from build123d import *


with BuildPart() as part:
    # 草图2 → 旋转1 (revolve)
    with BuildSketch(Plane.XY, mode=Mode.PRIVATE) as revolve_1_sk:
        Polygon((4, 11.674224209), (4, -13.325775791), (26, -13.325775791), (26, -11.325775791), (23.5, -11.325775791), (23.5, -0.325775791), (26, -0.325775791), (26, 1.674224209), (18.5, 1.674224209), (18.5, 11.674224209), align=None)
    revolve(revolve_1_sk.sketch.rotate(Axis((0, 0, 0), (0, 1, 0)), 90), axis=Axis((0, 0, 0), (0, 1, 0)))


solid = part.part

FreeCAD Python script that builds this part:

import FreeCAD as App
import Part
import Sketcher
from FreeCAD import Vector


def add_polygon(sketch, points):
    """Adds a closed chain of lines whose ends are joined by coincident constraints."""
    first, n = sketch.GeometryCount, len(points)
    for a, b in zip(points, points[1:] + points[:1]):
        sketch.addGeometry(Part.LineSegment(App.Vector(*a, 0), App.Vector(*b, 0)), False)
    for i in range(n):
        sketch.addConstraint(Sketcher.Constraint("Coincident", first + i, 2, first + (i + 1) % n, 1))

doc = App.newDocument("Part")
params = doc.addObject("Spreadsheet::Sheet", "Params")
for row, (alias, value) in enumerate([
    ("sketch1_width", "22 mm"),
    ("sketch1_height", "25 mm"),
    ("sketch1_height2", "2 mm"),
    ("sketch1_height3", "11 mm"),
    ("sketch1_width2", "2.5 mm"),
    ("revolution_angle", "360 deg"),
], start=1):
    params.set(f"A{row}", alias)
    params.set(f"B{row}", "=" + value)
    params.setAlias(f"B{row}", alias)

body = doc.addObject("PartDesign::Body", "Body")

# Sketch on XY plane
sketch1 = doc.addObject("Sketcher::SketchObject", "Sketch")
body.addObject(sketch1)
sketch1.AttachmentSupport = (doc.XY_Plane, [""])
sketch1.MapMode = "FlatFace"
add_polygon(sketch1, [(4, 11.674224), (4, -13.325776), (26, -13.325776), (26, -11.325776), (23.5, -11.325776), (23.5, -0.325776), (26, -0.325776), (26, 1.674224), (18.5, 1.674224), (18.5, 11.674224)])  # lines 0-9
sketch1.addConstraint([
    Sketcher.Constraint("Vertical", 0),
    Sketcher.Constraint("Horizontal", 1),
    Sketcher.Constraint("Vertical", 2),
    Sketcher.Constraint("Horizontal", 3),
    Sketcher.Constraint("Vertical", 4),
    Sketcher.Constraint("Horizontal", 5),
    Sketcher.Constraint("Vertical", 6),
    Sketcher.Constraint("Horizontal", 7),
    Sketcher.Constraint("Vertical", 8),
    Sketcher.Constraint("Horizontal", 9),
    Sketcher.Constraint("Vertical", 2, 2, 5, 2),
    Sketcher.Constraint("Equal", 2, 6),
    Sketcher.Constraint("DistanceX", 1, 1, 1, 2, 22.0),
    Sketcher.Constraint("DistanceY", 0, 2, 0, 1, 25.0),
    Sketcher.Constraint("DistanceY", 2, 1, 2, 2, 2.0),
    Sketcher.Constraint("DistanceY", 4, 1, 4, 2, 11.0),
    Sketcher.Constraint("DistanceX", 3, 2, 3, 1, 2.5),
    Sketcher.Constraint("DistanceX", 7, 2, 7, 1, 7.5),
    Sketcher.Constraint("DistanceX", -1, 1, 0, 2, 4.0),
    Sketcher.Constraint("DistanceY", 0, 2, -1, 1, 13.325776),
])
sketch1.setExpression("Constraints[22]", "Params.sketch1_width")
sketch1.setExpression("Constraints[23]", "Params.sketch1_height")
sketch1.setExpression("Constraints[24]", "Params.sketch1_height2")
sketch1.setExpression("Constraints[25]", "Params.sketch1_height3")
sketch1.setExpression("Constraints[26]", "Params.sketch1_width2")
revolution = doc.addObject("PartDesign::Revolution", "Revolution")
body.addObject(revolution)
revolution.Profile = sketch1
revolution.ReferenceAxis = (sketch1, ["V_Axis"])
revolution.setExpression("Angle", "Params.revolution_angle")

doc.recompute()
